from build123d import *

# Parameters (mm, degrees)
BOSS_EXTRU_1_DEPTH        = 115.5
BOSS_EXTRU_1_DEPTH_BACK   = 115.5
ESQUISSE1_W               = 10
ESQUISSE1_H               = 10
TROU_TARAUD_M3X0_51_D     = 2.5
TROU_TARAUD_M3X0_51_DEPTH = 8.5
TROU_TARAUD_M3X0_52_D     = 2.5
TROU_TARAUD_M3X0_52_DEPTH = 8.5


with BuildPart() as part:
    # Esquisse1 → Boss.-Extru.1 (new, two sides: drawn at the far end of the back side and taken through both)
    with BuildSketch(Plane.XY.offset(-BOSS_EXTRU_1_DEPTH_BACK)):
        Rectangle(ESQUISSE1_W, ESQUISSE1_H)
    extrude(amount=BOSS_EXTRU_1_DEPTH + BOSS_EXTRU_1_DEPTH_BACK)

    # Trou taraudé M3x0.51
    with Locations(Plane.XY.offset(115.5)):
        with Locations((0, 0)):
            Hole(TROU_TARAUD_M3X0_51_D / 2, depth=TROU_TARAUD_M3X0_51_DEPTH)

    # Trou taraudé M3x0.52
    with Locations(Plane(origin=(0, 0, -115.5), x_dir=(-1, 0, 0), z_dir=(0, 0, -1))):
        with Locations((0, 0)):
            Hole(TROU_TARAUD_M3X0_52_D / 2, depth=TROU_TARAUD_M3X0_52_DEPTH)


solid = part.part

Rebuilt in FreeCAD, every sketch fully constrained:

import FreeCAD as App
import Part
import Sketcher
from FreeCAD import Vector


def add_polygon(sketch, points):
    """Adds a closed chain of lines whose ends are joined by coincident constraints."""
    first, n = sketch.GeometryCount, len(points)
    for a, b in zip(points, points[1:] + points[:1]):
        sketch.addGeometry(Part.LineSegment(App.Vector(*a, 0), App.Vector(*b, 0)), False)
    for i in range(n):
        sketch.addConstraint(Sketcher.Constraint("Coincident", first + i, 2, first + (i + 1) % n, 1))

doc = App.newDocument("Part")
params = doc.addObject("Spreadsheet::Sheet", "Params")
for row, (alias, value) in enumerate([
    ("sketch1_width", "10 mm"),
    ("pad1_length", "115.5 mm"),
    ("pad1_length2", "115.5 mm"),
    ("sketch2_diameter", "2.5 mm"),
    ("hole_diameter", "2.5 mm"),
    ("hole_depth", "8.5 mm"),
    ("sketch3_diameter", "2.5 mm"),
    ("hole2_diameter", "2.5 mm"),
    ("hole2_depth", "8.5 mm"),
], start=1):
    params.set(f"A{row}", alias)
    params.set(f"B{row}", "=" + value)
    params.setAlias(f"B{row}", alias)

body = doc.addObject("PartDesign::Body", "Body")

# Sketch on XY plane
sketch1 = body.newObject("Sketcher::SketchObject", "Sketch")
sketch1.AttachmentSupport = (doc.getObject("XY_Plane"), [""])
sketch1.MapMode = "FlatFace"
add_polygon(sketch1, [(-5, 5), (-5, -5), (5, -5), (5, 5)])  # lines 0-3
sketch1.addConstraint([
    Sketcher.Constraint("Vertical", 0),
    Sketcher.Constraint("Horizontal", 1),
    Sketcher.Constraint("Vertical", 2),
    Sketcher.Constraint("Horizontal", 3),
    Sketcher.Constraint("Symmetric", 0, 2, 2, 2, -1, 1),
    Sketcher.Constraint("Equal", 3, 0),
    Sketcher.Constraint("DistanceX", 1, 1, 1, 2, 10.0),
])
sketch1.setExpression("Constraints[10]", "Params.sketch1_width")
pad1 = body.newObject("PartDesign::Pad", "Pad")
pad1.Profile = sketch1
pad1.Type = "TwoLengths"
pad1.setExpression("Length", "Params.pad1_length")
pad1.setExpression("Length2", "Params.pad1_length2")

# Sketch on XY plane
sketch2 = body.newObject("Sketcher::SketchObject", "Sketch001")
sketch2.AttachmentSupport = (doc.getObject("XY_Plane"), [""])
sketch2.MapMode = "FlatFace"
sketch2.AttachmentOffset = App.Placement(Vector(0, 0, 115.5), App.Rotation())
sketch2.addGeometry(Part.Circle(Vector(0, 0, 0), Vector(0, 0, 1), 1.2), False)
sketch2.addConstraint([
    Sketcher.Constraint("Coincident", 0, 3, -1, 1),
    Sketcher.Constraint("Diameter", 0, 2.5),
])
sketch2.setExpression("Constraints[1]", "Params.sketch2_diameter")
doc.recompute()
hole = body.newObject("PartDesign::Hole", "Hole")
hole.Profile = sketch2
hole.ThreadType = "None"
hole.setExpression("Diameter", "Params.hole_diameter")
hole.DepthType = "Dimension"
hole.setExpression("Depth", "Params.hole_depth")
hole.DrillPoint = "Flat"

# Sketch on XY plane
sketch3 = body.newObject("Sketcher::SketchObject", "Sketch002")
sketch3.AttachmentSupport = (doc.getObject("XY_Plane"), [""])
sketch3.MapMode = "FlatFace"
sketch3.AttachmentOffset = App.Placement(Vector(0, 0, -115.5), App.Rotation())
sketch3.addGeometry(Part.Circle(Vector(0, 0, 0), Vector(0, 0, 1), 1.2), False)
sketch3.addConstraint([
    Sketcher.Constraint("Coincident", 0, 3, -1, 1),
    Sketcher.Constraint("Diameter", 0, 2.5),
])
sketch3.setExpression("Constraints[1]", "Params.sketch3_diameter")
doc.recompute()
hole2 = body.newObject("PartDesign::Hole", "Hole001")
hole2.Profile = sketch3
hole2.ThreadType = "None"
hole2.setExpression("Diameter", "Params.hole2_diameter")
hole2.DepthType = "Dimension"
hole2.setExpression("Depth", "Params.hole2_depth")
hole2.DrillPoint = "Flat"
hole2.Reversed = True

doc.recompute()
